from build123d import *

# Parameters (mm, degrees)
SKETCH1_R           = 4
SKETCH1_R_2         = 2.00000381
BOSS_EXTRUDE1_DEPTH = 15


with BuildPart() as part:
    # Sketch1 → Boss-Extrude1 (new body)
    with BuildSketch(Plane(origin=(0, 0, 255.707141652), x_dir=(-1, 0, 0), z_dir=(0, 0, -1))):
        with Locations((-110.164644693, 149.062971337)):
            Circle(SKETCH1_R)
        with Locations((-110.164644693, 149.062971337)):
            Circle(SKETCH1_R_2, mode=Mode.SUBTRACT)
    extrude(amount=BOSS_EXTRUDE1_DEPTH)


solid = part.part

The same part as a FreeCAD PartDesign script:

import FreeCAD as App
import Part
import Sketcher
from FreeCAD import Vector
Q = App.Units.Quantity

doc = App.newDocument("Part")
body = doc.addObject("PartDesign::Body", "Body")

# Sketch on XY plane
sketch1 = body.newObject("Sketcher::SketchObject", "Sketch")
sketch1.AttachmentSupport = (doc.getObject("XY_Plane"), [""])
sketch1.MapMode = "FlatFace"
sketch1.AttachmentOffset = App.Placement(Vector(0, 0, 255.707142), App.Rotation())
sketch1.addGeometry(Part.Circle(Vector(110.2, 149.1, 0), Vector(0, 0, 1), 4), False)
sketch1.addGeometry(Part.Circle(Vector(110.2, 149.1, 0), Vector(0, 0, 1), 2), False)
sketch1.addConstraint(Sketcher.Constraint("Coincident", 1, 3, 0, 3))
sketch1.addConstraint(Sketcher.Constraint("Diameter", 0, Q("8 mm")))
sketch1.addConstraint(Sketcher.Constraint("Diameter", 1, Q("4.000008 mm")))
sketch1.addConstraint(Sketcher.Constraint("DistanceY", -1, 1, 0, 3, Q("149.062971 mm")))
sketch1.addConstraint(Sketcher.Constraint("DistanceX", -1, 1, 0, 3, Q("110.164645 mm")))
pad1 = body.newObject("PartDesign::Pad", "Pad")
pad1.Profile = sketch1
pad1.Length = 15
pad1.Reversed = True

doc.recompute()
